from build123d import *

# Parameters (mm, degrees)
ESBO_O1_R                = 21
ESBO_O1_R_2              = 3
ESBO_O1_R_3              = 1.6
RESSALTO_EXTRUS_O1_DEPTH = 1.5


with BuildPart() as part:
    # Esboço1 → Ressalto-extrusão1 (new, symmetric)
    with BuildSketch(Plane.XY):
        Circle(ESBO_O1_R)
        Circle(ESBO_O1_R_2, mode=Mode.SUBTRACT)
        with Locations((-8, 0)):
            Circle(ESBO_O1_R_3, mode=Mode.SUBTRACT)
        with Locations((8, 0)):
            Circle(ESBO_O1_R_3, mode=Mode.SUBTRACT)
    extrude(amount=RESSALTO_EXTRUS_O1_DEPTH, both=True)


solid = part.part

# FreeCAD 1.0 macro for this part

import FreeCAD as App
import Part
import Sketcher
Q = App.Units.Quantity

doc = App.newDocument("Part")
params = doc.addObject("Spreadsheet::Sheet", "Params")
for row, (alias, value) in enumerate([
    ("sketch1_diameter", "42 mm"),
    ("sketch1_diameter2", "6 mm"),
    ("sketch1_diameter3", "3.2 mm"),
    ("pad1_length", "3 mm"),
], start=1):
    params.set(f"A{row}", alias)
    params.set(f"B{row}", "=" + value)
    params.setAlias(f"B{row}", alias)

body = doc.addObject("PartDesign::Body", "Body")

# Sketch on XY plane
sketch1 = body.newObject("Sketcher::SketchObject", "Sketch")
sketch1.AttachmentSupport = (doc.getObject("XY_Plane"), [""])
sketch1.MapMode = "FlatFace"
sketch1.addGeometry([
    Part.Circle(App.Vector(0, 0, 0), App.Vector(0, 0, 1), 21),
    Part.Circle(App.Vector(-8, 0, 0), App.Vector(0, 0, 1), 1.6),
    Part.Circle(App.Vector(0, 0, 0), App.Vector(0, 0, 1), 3),
    Part.Circle(App.Vector(8, 0, 0), App.Vector(0, 0, 1), 1.6),
], False)
sketch1.addConstraint([
    Sketcher.Constraint("Coincident", 0, 3, -1, 1),
    Sketcher.Constraint("Coincident", 2, 3, -1, 1),
    Sketcher.Constraint("Equal", 1, 3),
    Sketcher.Constraint("Symmetric", 1, 3, 3, 3, -1, 1),
    Sketcher.Constraint("PointOnObject", 1, 3, -1),
    Sketcher.Constraint("Diameter", 0, Q("42 mm")),
    Sketcher.Constraint("Diameter", 2, Q("6 mm")),
    Sketcher.Constraint("Diameter", 1, Q("3.2 mm")),
    Sketcher.Constraint("DistanceX", 1, 3, -1, 1, Q("8 mm")),
])
sketch1.setExpression("Constraints[5]", "Params.sketch1_diameter")
sketch1.setExpression("Constraints[6]", "Params.sketch1_diameter2")
sketch1.setExpression("Constraints[7]", "Params.sketch1_diameter3")
pad1 = body.newObject("PartDesign::Pad", "Pad")
pad1.Profile = sketch1
pad1.setExpression("Length", "Params.pad1_length")
pad1.Midplane = True

doc.recompute()
